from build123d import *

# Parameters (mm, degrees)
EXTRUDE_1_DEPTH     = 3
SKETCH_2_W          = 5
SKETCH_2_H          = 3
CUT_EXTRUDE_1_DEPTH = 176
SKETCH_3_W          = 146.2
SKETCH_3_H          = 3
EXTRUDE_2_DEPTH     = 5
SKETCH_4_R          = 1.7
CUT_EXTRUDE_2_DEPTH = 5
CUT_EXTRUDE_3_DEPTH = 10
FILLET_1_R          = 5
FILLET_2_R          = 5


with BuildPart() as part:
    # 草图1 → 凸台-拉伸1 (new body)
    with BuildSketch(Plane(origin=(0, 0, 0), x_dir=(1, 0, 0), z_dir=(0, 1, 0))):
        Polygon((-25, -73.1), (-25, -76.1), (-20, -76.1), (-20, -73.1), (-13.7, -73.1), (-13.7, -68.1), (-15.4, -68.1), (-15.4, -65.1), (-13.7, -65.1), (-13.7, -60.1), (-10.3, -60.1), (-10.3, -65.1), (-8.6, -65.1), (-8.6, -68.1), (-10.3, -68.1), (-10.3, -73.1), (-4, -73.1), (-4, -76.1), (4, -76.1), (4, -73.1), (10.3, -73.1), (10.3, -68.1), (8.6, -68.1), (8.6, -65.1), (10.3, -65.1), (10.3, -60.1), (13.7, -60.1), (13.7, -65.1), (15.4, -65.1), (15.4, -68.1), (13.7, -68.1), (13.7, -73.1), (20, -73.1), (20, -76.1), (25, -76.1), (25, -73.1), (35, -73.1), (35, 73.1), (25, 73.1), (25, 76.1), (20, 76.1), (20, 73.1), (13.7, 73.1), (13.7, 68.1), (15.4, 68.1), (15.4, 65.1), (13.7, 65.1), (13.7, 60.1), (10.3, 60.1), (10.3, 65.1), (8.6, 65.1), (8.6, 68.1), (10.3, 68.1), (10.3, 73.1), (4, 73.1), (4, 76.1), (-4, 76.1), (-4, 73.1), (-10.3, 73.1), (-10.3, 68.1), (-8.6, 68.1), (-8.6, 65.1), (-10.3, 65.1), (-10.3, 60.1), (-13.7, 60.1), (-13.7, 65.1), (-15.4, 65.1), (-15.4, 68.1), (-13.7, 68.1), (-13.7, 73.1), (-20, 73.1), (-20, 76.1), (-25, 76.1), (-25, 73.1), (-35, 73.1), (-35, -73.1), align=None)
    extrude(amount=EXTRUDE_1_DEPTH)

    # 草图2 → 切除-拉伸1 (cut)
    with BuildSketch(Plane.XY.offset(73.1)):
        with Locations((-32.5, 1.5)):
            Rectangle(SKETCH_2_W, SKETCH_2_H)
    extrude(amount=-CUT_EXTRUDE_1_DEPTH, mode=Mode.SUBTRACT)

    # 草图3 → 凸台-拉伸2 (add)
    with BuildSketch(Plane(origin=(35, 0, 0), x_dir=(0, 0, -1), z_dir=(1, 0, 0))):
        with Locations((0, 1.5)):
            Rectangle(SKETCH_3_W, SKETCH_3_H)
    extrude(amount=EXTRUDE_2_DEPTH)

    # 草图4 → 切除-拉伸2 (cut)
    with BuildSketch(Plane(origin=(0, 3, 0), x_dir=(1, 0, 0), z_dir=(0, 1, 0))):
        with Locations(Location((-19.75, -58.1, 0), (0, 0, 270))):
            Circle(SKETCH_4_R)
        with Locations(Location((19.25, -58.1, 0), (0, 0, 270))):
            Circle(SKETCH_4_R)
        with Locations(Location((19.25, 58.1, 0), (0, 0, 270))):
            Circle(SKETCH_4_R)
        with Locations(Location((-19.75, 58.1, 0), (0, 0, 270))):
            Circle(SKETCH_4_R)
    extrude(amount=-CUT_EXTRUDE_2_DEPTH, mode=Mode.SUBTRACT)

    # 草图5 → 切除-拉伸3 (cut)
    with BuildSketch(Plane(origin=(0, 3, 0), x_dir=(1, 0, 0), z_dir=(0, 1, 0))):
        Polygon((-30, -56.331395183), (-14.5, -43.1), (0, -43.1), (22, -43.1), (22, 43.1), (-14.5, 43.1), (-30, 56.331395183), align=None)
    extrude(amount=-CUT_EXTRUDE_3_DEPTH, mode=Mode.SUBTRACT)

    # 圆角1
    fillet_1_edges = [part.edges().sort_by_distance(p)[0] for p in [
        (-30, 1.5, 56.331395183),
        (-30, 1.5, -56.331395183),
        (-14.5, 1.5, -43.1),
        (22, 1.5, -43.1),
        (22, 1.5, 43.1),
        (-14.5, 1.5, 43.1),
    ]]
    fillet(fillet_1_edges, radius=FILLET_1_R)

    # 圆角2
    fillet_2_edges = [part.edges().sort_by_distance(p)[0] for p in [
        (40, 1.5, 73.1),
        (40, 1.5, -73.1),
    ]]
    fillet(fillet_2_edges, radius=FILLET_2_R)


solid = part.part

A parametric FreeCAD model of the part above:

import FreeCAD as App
import Part
import Sketcher
from FreeCAD import Vector


def edges_at(feature, points):
    """Names of the edges that pass closest to the given points."""
    edges = feature.Shape.Edges
    near = lambda p: min(range(len(edges)), key=lambda i: edges[i].distToShape(Part.Vertex(*p))[0])
    return sorted({f"Edge{near(p) + 1}" for p in points})


def add_polygon(sketch, points):
    """Adds a closed chain of lines whose ends are joined by coincident constraints."""
    first, n = sketch.GeometryCount, len(points)
    for a, b in zip(points, points[1:] + points[:1]):
        sketch.addGeometry(Part.LineSegment(App.Vector(*a, 0), App.Vector(*b, 0)), False)
    for i in range(n):
        sketch.addConstraint(Sketcher.Constraint("Coincident", first + i, 2, first + (i + 1) % n, 1))

doc = App.newDocument("Part")
body = doc.addObject("PartDesign::Body", "Body")

# Sketch on XZ plane
sketch1 = body.newObject("Sketcher::SketchObject", "Sketch")
sketch1.AttachmentSupport = (doc.getObject("XZ_Plane"), [""])
sketch1.MapMode = "FlatFace"
add_polygon(sketch1, [(-25, 73.1), (-25, 76.1), (-20, 76.1), (-20, 73.1), (-13.7, 73.1), (-13.7, 68.1), (-15.4, 68.1), (-15.4, 65.1), (-13.7, 65.1), (-13.7, 60.1), (-10.3, 60.1), (-10.3, 65.1), (-8.6, 65.1), (-8.6, 68.1), (-10.3, 68.1), (-10.3, 73.1), (-4, 73.1), (-4, 76.1), (4, 76.1), (4, 73.1), (10.3, 73.1), (10.3, 68.1), (8.6, 68.1), (8.6, 65.1), (10.3, 65.1), (10.3, 60.1), (13.7, 60.1), (13.7, 65.1), (15.4, 65.1), (15.4, 68.1), (13.7, 68.1), (13.7, 73.1), (20, 73.1), (20, 76.1), (25, 76.1), (25, 73.1), (35, 73.1), (35, -73.1), (25, -73.1), (25, -76.1), (20, -76.1), (20, -73.1), (13.7, -73.1), (13.7, -68.1), (15.4, -68.1), (15.4, -65.1), (13.7, -65.1), (13.7, -60.1), (10.3, -60.1), (10.3, -65.1), (8.6, -65.1), (8.6, -68.1), (10.3, -68.1), (10.3, -73.1), (4, -73.1), (4, -76.1), (-4, -76.1), (-4, -73.1), (-10.3, -73.1), (-10.3, -68.1), (-8.6, -68.1), (-8.6, -65.1), (-10.3, -65.1), (-10.3, -60.1), (-13.7, -60.1), (-13.7, -65.1), (-15.4, -65.1), (-15.4, -68.1), (-13.7, -68.1), (-13.7, -73.1), (-20, -73.1), (-20, -76.1), (-25, -76.1), (-25, -73.1), (-35, -73.1), (-35, 73.1)])  # lines 0-75
sketch1.addConstraint(Sketcher.Constraint("Vertical", 0))
sketch1.addConstraint(Sketcher.Constraint("Horizontal", 1))
sketch1.addConstraint(Sketcher.Constraint("Vertical", 2))
sketch1.addConstraint(Sketcher.Constraint("Horizontal", 3))
sketch1.addConstraint(Sketcher.Constraint("Vertical", 4))
sketch1.addConstraint(Sketcher.Constraint("Horizontal", 5))
sketch1.addConstraint(Sketcher.Constraint("Vertical", 6))
sketch1.addConstraint(Sketcher.Constraint("Horizontal", 7))
sketch1.addConstraint(Sketcher.Constraint("Vertical", 8))
sketch1.addConstraint(Sketcher.Constraint("Horizontal", 9))
sketch1.addConstraint(Sketcher.Constraint("Vertical", 10))
sketch1.addConstraint(Sketcher.Constraint("Horizontal", 11))
sketch1.addConstraint(Sketcher.Constraint("Vertical", 12))
sketch1.addConstraint(Sketcher.Constraint("Horizontal", 13))
sketch1.addConstraint(Sketcher.Constraint("Vertical", 14))
sketch1.addConstraint(Sketcher.Constraint("Horizontal", 15))
sketch1.addConstraint(Sketcher.Constraint("Vertical", 16))
sketch1.addConstraint(Sketcher.Constraint("Horizontal", 17))
sketch1.addConstraint(Sketcher.Constraint("Vertical", 18))
sketch1.addConstraint(Sketcher.Constraint("Horizontal", 19))
sketch1.addConstraint(Sketcher.Constraint("Vertical", 20))
sketch1.addConstraint(Sketcher.Constraint("Horizontal", 21))
sketch1.addConstraint(Sketcher.Constraint("Vertical", 22))
sketch1.addConstraint(Sketcher.Constraint("Horizontal", 23))
sketch1.addConstraint(Sketcher.Constraint("Vertical", 24))
sketch1.addConstraint(Sketcher.Constraint("Horizontal", 25))
sketch1.addConstraint(Sketcher.Constraint("Vertical", 26))
sketch1.addConstraint(Sketcher.Constraint("Horizontal", 27))
sketch1.addConstraint(Sketcher.Constraint("Vertical", 28))
sketch1.addConstraint(Sketcher.Constraint("Horizontal", 29))
sketch1.addConstraint(Sketcher.Constraint("Vertical", 30))
sketch1.addConstraint(Sketcher.Constraint("Horizontal", 31))
sketch1.addConstraint(Sketcher.Constraint("Vertical", 32))
sketch1.addConstraint(Sketcher.Constraint("Horizontal", 33))
sketch1.addConstraint(Sketcher.Constraint("Vertical", 34))
sketch1.addConstraint(Sketcher.Constraint("Horizontal", 35))
sketch1.addConstraint(Sketcher.Constraint("Vertical", 36))
sketch1.addConstraint(Sketcher.Constraint("Horizontal", 37))
sketch1.addConstraint(Sketcher.Constraint("Vertical", 38))
sketch1.addConstraint(Sketcher.Constraint("Horizontal", 39))
sketch1.addConstraint(Sketcher.Constraint("Vertical", 40))
sketch1.addConstraint(Sketcher.Constraint("Horizontal", 41))
sketch1.addConstraint(Sketcher.Constraint("Vertical", 42))
sketch1.addConstraint(Sketcher.Constraint("Horizontal", 43))
sketch1.addConstraint(Sketcher.Constraint("Vertical", 44))
sketch1.addConstraint(Sketcher.Constraint("Horizontal", 45))
sketch1.addConstraint(Sketcher.Constraint("Vertical", 46))
sketch1.addConstraint(Sketcher.Constraint("Horizontal", 47))
sketch1.addConstraint(Sketcher.Constraint("Vertical", 48))
sketch1.addConstraint(Sketcher.Constraint("Horizontal", 49))
sketch1.addConstraint(Sketcher.Constraint("Vertical", 50))
sketch1.addConstraint(Sketcher.Constraint("Horizontal", 51))
sketch1.addConstraint(Sketcher.Constraint("Vertical", 52))
sketch1.addConstraint(Sketcher.Constraint("Horizontal", 53))
sketch1.addConstraint(Sketcher.Constraint("Vertical", 54))
sketch1.addConstraint(Sketcher.Constraint("Horizontal", 55))
sketch1.addConstraint(Sketcher.Constraint("Vertical", 56))
sketch1.addConstraint(Sketcher.Constraint("Horizontal", 57))
sketch1.addConstraint(Sketcher.Constraint("Vertical", 58))
sketch1.addConstraint(Sketcher.Constraint("Horizontal", 59))
sketch1.addConstraint(Sketcher.Constraint("Vertical", 60))
sketch1.addConstraint(Sketcher.Constraint("Horizontal", 61))
sketch1.addConstraint(Sketcher.Constraint("Vertical", 62))
sketch1.addConstraint(Sketcher.Constraint("Horizontal", 63))
sketch1.addConstraint(Sketcher.Constraint("Vertical", 64))
sketch1.addConstraint(Sketcher.Constraint("Horizontal", 65))
sketch1.addConstraint(Sketcher.Constraint("Vertical", 66))
sketch1.addConstraint(Sketcher.Constraint("Horizontal", 67))
sketch1.addConstraint(Sketcher.Constraint("Vertical", 68))
sketch1.addConstraint(Sketcher.Constraint("Horizontal", 69))
sketch1.addConstraint(Sketcher.Constraint("Vertical", 70))
sketch1.addConstraint(Sketcher.Constraint("Horizontal", 71))
sketch1.addConstraint(Sketcher.Constraint("Vertical", 72))
sketch1.addConstraint(Sketcher.Constraint("Horizontal", 73))
sketch1.addConstraint(Sketcher.Constraint("Vertical", 74))
sketch1.addConstraint(Sketcher.Constraint("Horizontal", 75))
sketch1.addConstraint(Sketcher.Constraint("Symmetric", 0, 2, 38, 2, -1, 1))
sketch1.addConstraint(Sketcher.Constraint("Symmetric", 2, 2, 40, 2, -1, 1))
sketch1.addConstraint(Sketcher.Constraint("Symmetric", 4, 2, 42, 2, -1, 1))
sketch1.addConstraint(Sketcher.Constraint("Symmetric", 6, 2, 44, 2, -1, 1))
sketch1.addConstraint(Sketcher.Constraint("Symmetric", 8, 2, 46, 2, -1, 1))
sketch1.addConstraint(Sketcher.Constraint("Symmetric", 10, 2, 48, 2, -1, 1))
sketch1.addConstraint(Sketcher.Constraint("Symmetric", 12, 2, 50, 2, -1, 1))
sketch1.addConstraint(Sketcher.Constraint("Symmetric", 14, 2, 52, 2, -1, 1))
sketch1.addConstraint(Sketcher.Constraint("Symmetric", 16, 2, 54, 2, -1, 1))
sketch1.addConstraint(Sketcher.Constraint("Symmetric", 18, 2, 56, 2, -1, 1))
sketch1.addConstraint(Sketcher.Constraint("Symmetric", 20, 2, 58, 2, -1, 1))
sketch1.addConstraint(Sketcher.Constraint("Symmetric", 22, 2, 60, 2, -1, 1))
sketch1.addConstraint(Sketcher.Constraint("Symmetric", 24, 2, 62, 2, -1, 1))
sketch1.addConstraint(Sketcher.Constraint("Symmetric", 26, 2, 64, 2, -1, 1))
sketch1.addConstraint(Sketcher.Constraint("Symmetric", 28, 2, 66, 2, -1, 1))
sketch1.addConstraint(Sketcher.Constraint("Symmetric", 30, 2, 68, 2, -1, 1))
sketch1.addConstraint(Sketcher.Constraint("Symmetric", 32, 2, 70, 2, -1, 1))
sketch1.addConstraint(Sketcher.Constraint("Symmetric", 34, 2, 72, 2, -1, 1))
sketch1.addConstraint(Sketcher.Constraint("Symmetric", 36, 2, 74, 2, -1, 1))
sketch1.addConstraint(Sketcher.Constraint("Symmetric", 15, 2, 18, 2, -2))
sketch1.addConstraint(Sketcher.Constraint("Symmetric", 13, 2, 20, 2, -2))
sketch1.addConstraint(Sketcher.Constraint("Symmetric", 11, 2, 22, 2, -2))
sketch1.addConstraint(Sketcher.Constraint("Symmetric", 9, 2, 24, 2, -2))
sketch1.addConstraint(Sketcher.Constraint("Symmetric", 7, 2, 26, 2, -2))
sketch1.addConstraint(Sketcher.Constraint("Symmetric", 5, 2, 28, 2, -2))
sketch1.addConstraint(Sketcher.Constraint("Symmetric", 3, 2, 30, 2, -2))
sketch1.addConstraint(Sketcher.Constraint("Symmetric", 1, 2, 32, 2, -2))
sketch1.addConstraint(Sketcher.Constraint("Symmetric", 37, 2, 72, 2, -2))
sketch1.addConstraint(Sketcher.Constraint("Horizontal", 7, 2, 10, 2))
sketch1.addConstraint(Sketcher.Constraint("Horizontal", 5, 2, 12, 2))
sketch1.addConstraint(Sketcher.Constraint("Horizontal", 3, 2, 14, 2))
sketch1.addConstraint(Sketcher.Constraint("Horizontal", 1, 2, 16, 2))
sketch1.addConstraint(Sketcher.Constraint("Horizontal", 31, 2, 34, 2))
sketch1.addConstraint(Sketcher.Constraint("Vertical", 4, 2, 7, 2))
sketch1.addConstraint(Sketcher.Constraint("Vertical", 10, 2, 13, 2))
sketch1.addConstraint(Sketcher.Constraint("Equal", 7, 11))
sketch1.addConstraint(Sketcher.Constraint("Equal", 3, 15))
sketch1.addConstraint(Sketcher.Constraint("Equal", 71, 4))
sketch1.addConstraint(Sketcher.Constraint("Equal", 2, 6))
sketch1.addConstraint(Sketcher.Constraint("Equal", 4, 8))
sketch1.addConstraint(Sketcher.Constraint("DistanceX", 1, 1, 1, 2, 5.0))
sketch1.addConstraint(Sketcher.Constraint("DistanceX", 17, 1, 17, 2, 8.0))
sketch1.addConstraint(Sketcher.Constraint("DistanceX", 35, 1, 35, 2, 10.0))
sketch1.addConstraint(Sketcher.Constraint("DistanceY", 0, 1, 0, 2, 3.0))
sketch1.addConstraint(Sketcher.Constraint("DistanceX", 3, 1, 3, 2, 6.3))
sketch1.addConstraint(Sketcher.Constraint("DistanceX", 5, 2, 5, 1, 1.7))
sketch1.addConstraint(Sketcher.Constraint("DistanceX", 9, 1, 9, 2, 3.4))
sketch1.addConstraint(Sketcher.Constraint("DistanceY", 36, 2, 36, 1, 146.2))
pad1 = body.newObject("PartDesign::Pad", "Pad")
pad1.Profile = sketch1
pad1.Length = 3
pad1.Reversed = True

# Sketch on XY plane
sketch2 = body.newObject("Sketcher::SketchObject", "Sketch001")
sketch2.AttachmentSupport = (doc.getObject("XY_Plane"), [""])
sketch2.MapMode = "FlatFace"
sketch2.AttachmentOffset = App.Placement(Vector(0, 0, 73.1), App.Rotation())
add_polygon(sketch2, [(-35, 3), (-35, 0), (-30, 0), (-30, 3)])  # lines 0-3
sketch2.addConstraint(Sketcher.Constraint("Vertical", 0))
sketch2.addConstraint(Sketcher.Constraint("Horizontal", 1))
sketch2.addConstraint(Sketcher.Constraint("Vertical", 2))
sketch2.addConstraint(Sketcher.Constraint("Horizontal", 3))
sketch2.addConstraint(Sketcher.Constraint("PointOnObject", 0, 2, -1))
sketch2.addConstraint(Sketcher.Constraint("DistanceX", 1, 1, 1, 2, 5.0))
sketch2.addConstraint(Sketcher.Constraint("DistanceY", 0, 2, 0, 1, 3.0))
sketch2.addConstraint(Sketcher.Constraint("DistanceX", 0, 2, -1, 1, 35.0))
pocket1 = body.newObject("PartDesign::Pocket", "Pocket")
pocket1.Profile = sketch2
pocket1.Length = 176

# Sketch on YZ plane
sketch3 = body.newObject("Sketcher::SketchObject", "Sketch002")
sketch3.AttachmentSupport = (doc.getObject("YZ_Plane"), [""])
sketch3.MapMode = "FlatFace"
sketch3.AttachmentOffset = App.Placement(Vector(0, 0, 35), App.Rotation())
add_polygon(sketch3, [(3, 73.1), (0, 73.1), (0, -73.1), (3, -73.1)])  # lines 0-3
sketch3.addConstraint(Sketcher.Constraint("Horizontal", 0))
sketch3.addConstraint(Sketcher.Constraint("Vertical", 1))
sketch3.addConstraint(Sketcher.Constraint("Horizontal", 2))
sketch3.addConstraint(Sketcher.Constraint("Vertical", 3))
sketch3.addConstraint(Sketcher.Constraint("Symmetric", 0, 2, 1, 2, -1, 1))
sketch3.addConstraint(Sketcher.Constraint("DistanceX", 0, 2, 0, 1, 3.0))
sketch3.addConstraint(Sketcher.Constraint("DistanceY", 1, 2, 1, 1, 146.2))
pad2 = body.newObject("PartDesign::Pad", "Pad001")
pad2.Profile = sketch3
pad2.Length = 5

# Sketch on XZ plane
sketch4 = body.newObject("Sketcher::SketchObject", "Sketch003")
sketch4.AttachmentSupport = (doc.getObject("XZ_Plane"), [""])
sketch4.MapMode = "FlatFace"
sketch4.AttachmentOffset = App.Placement(Vector(0, 0, -3), App.Rotation())
sketch4.addGeometry(Part.Circle(Vector(-19.8, 58.1, 0), Vector(0, 0, 1), 1.7), False)
sketch4.addGeometry(Part.Circle(Vector(19.2, 58.1, 0), Vector(0, 0, 1), 1.7), False)
sketch4.addGeometry(Part.Circle(Vector(19.2, -58.1, 0), Vector(0, 0, 1), 1.7), False)
sketch4.addGeometry(Part.Circle(Vector(-19.8, -58.1, 0), Vector(0, 0, 1), 1.7), False)
sketch4.addConstraint(Sketcher.Constraint("Equal", 0, 1))
sketch4.addConstraint(Sketcher.Constraint("Equal", 1, 2))
sketch4.addConstraint(Sketcher.Constraint("Equal", 2, 3))
sketch4.addConstraint(Sketcher.Constraint("Symmetric", 1, 3, 2, 3, -1))
sketch4.addConstraint(Sketcher.Constraint("Symmetric", 0, 3, 3, 3, -1))
sketch4.addConstraint(Sketcher.Constraint("Horizontal", 0, 3, 1, 3))
sketch4.addConstraint(Sketcher.Constraint("Diameter", 0, 3.4))
sketch4.addConstraint(Sketcher.Constraint("DistanceX", 0, 3, 1, 3, 39.0))
sketch4.addConstraint(Sketcher.Constraint("DistanceY", -1, 1, 0, 3, 58.1))
sketch4.addConstraint(Sketcher.Constraint("DistanceX", 0, 3, -1, 1, 19.75))
pocket2 = body.newObject("PartDesign::Pocket", "Pocket001")
pocket2.Profile = sketch4
pocket2.Length = 5
pocket2.Reversed = True

# Sketch on XZ plane
sketch5 = body.newObject("Sketcher::SketchObject", "Sketch004")
sketch5.AttachmentSupport = (doc.getObject("XZ_Plane"), [""])
sketch5.MapMode = "FlatFace"
sketch5.AttachmentOffset = App.Placement(Vector(0, 0, -3), App.Rotation())
add_polygon(sketch5, [(-30, 56), (-14, 43), (22, 43), (22, -43), (-14, -43), (-30, -56)])  # lines 0-5
sketch5.addConstraint(Sketcher.Constraint("Horizontal", 1))
sketch5.addConstraint(Sketcher.Constraint("Vertical", 2))
sketch5.addConstraint(Sketcher.Constraint("Horizontal", 3))
sketch5.addConstraint(Sketcher.Constraint("Vertical", 5))
sketch5.addConstraint(Sketcher.Constraint("Symmetric", 0, 2, 3, 2, -1))
sketch5.addConstraint(Sketcher.Constraint("Equal", 0, 4))
sketch5.addConstraint(Sketcher.Constraint("DistanceX", 1, 1, 1, 2, 36.5))
sketch5.addConstraint(Sketcher.Constraint("DistanceY", 2, 2, 2, 1, 86.2))
sketch5.addConstraint(Sketcher.Constraint("DistanceX", -1, 1, 1, 2, 22.0))
sketch5.addConstraint(Sketcher.Constraint("DistanceX", 4, 2, -1, 1, 30.0))
sketch5.addConstraint(Sketcher.Constraint("DistanceY", 5, 1, 5, 2, 112.66279))
pocket3 = body.newObject("PartDesign::Pocket", "Pocket002")
pocket3.Profile = sketch5
pocket3.Length = 10
pocket3.Reversed = True
doc.recompute()

fillet = body.newObject("PartDesign::Fillet", "Fillet")
fillet.Base = (pocket3, edges_at(pocket3, [
    (-30, 1.5, 56.331),
    (-30, 1.5, -56.331),
    (-14.5, 1.5, -43.1),
    (22, 1.5, -43.1),
    (22, 1.5, 43.1),
    (-14.5, 1.5, 43.1),
]))
fillet.Radius = 5
doc.recompute()

fillet2 = body.newObject("PartDesign::Fillet", "Fillet001")
fillet2.Base = (fillet, edges_at(fillet, [(40, 1.5, 73.1), (40, 1.5, -73.1)]))
fillet2.Radius = 5

doc.recompute()
